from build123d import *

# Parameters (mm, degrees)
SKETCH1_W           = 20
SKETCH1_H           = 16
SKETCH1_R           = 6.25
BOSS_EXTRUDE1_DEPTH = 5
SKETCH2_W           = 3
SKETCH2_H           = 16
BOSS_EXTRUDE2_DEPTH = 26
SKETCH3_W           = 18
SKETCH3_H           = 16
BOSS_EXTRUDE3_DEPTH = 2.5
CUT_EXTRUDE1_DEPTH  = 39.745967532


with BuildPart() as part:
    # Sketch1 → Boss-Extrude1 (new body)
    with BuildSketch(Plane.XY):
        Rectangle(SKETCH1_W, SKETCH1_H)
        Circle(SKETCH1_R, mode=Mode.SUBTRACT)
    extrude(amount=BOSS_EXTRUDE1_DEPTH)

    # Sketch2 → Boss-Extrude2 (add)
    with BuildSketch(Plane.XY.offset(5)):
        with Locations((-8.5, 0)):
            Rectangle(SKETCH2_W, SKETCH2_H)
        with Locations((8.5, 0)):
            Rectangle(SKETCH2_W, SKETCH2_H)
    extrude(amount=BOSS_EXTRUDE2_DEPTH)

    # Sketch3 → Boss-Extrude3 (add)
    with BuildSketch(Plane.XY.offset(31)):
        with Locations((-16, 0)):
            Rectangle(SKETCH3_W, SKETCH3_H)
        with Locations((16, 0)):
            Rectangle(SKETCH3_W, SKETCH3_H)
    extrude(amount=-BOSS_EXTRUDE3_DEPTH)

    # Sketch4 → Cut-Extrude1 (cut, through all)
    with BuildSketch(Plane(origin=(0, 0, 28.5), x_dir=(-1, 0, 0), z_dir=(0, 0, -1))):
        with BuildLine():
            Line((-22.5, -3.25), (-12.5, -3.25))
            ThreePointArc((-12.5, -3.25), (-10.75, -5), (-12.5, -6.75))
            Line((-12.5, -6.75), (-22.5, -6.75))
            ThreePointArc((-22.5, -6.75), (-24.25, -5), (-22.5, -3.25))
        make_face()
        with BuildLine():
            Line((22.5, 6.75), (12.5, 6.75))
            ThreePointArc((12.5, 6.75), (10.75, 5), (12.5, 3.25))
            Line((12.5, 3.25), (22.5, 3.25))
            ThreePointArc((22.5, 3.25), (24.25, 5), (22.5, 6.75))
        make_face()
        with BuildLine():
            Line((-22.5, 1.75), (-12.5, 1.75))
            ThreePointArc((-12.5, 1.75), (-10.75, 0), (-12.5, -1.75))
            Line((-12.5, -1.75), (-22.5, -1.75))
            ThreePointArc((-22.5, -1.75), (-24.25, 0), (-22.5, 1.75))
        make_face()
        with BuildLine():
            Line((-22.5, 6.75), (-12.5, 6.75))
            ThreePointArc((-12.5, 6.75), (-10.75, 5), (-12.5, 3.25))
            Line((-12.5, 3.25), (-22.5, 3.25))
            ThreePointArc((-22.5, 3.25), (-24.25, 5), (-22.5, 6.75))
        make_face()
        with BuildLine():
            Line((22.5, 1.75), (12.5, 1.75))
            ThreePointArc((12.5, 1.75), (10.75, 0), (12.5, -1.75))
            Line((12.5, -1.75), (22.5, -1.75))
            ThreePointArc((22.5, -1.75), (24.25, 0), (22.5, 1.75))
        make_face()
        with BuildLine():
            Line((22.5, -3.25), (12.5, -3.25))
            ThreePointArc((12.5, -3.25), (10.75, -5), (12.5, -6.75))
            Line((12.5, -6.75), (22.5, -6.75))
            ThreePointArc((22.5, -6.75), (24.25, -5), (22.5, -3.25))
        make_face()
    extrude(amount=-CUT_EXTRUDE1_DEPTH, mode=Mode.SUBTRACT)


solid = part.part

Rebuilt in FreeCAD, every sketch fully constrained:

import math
import FreeCAD as App
import Part
import Sketcher
Q = App.Units.Quantity

doc = App.newDocument("Part")
body = doc.addObject("PartDesign::Body", "Body")

# Sketch on XY plane
sketch1 = doc.addObject("Sketcher::SketchObject", "Sketch")
body.addObject(sketch1)
sketch1.AttachmentSupport = (doc.XY_Plane, [""])
sketch1.MapMode = "FlatFace"
sketch1.addGeometry(Part.LineSegment(App.Vector(-10, 8, 0), App.Vector(-10, -8, 0)), False)
sketch1.addGeometry(Part.LineSegment(App.Vector(-10, -8, 0), App.Vector(10, -8, 0)), False)
sketch1.addGeometry(Part.LineSegment(App.Vector(10, -8, 0), App.Vector(10, 8, 0)), False)
sketch1.addGeometry(Part.LineSegment(App.Vector(10, 8, 0), App.Vector(-10, 8, 0)), False)
sketch1.addGeometry(Part.Circle(App.Vector(0, 0, 0), App.Vector(0, 0, 1), 6), False)
sketch1.addConstraint(Sketcher.Constraint("Coincident", 0, 2, 1, 1))
sketch1.addConstraint(Sketcher.Constraint("Coincident", 1, 2, 2, 1))
sketch1.addConstraint(Sketcher.Constraint("Coincident", 2, 2, 3, 1))
sketch1.addConstraint(Sketcher.Constraint("Coincident", 3, 2, 0, 1))
sketch1.addConstraint(Sketcher.Constraint("Vertical", 0))
sketch1.addConstraint(Sketcher.Constraint("Horizontal", 1))
sketch1.addConstraint(Sketcher.Constraint("Vertical", 2))
sketch1.addConstraint(Sketcher.Constraint("Horizontal", 3))
sketch1.addConstraint(Sketcher.Constraint("Coincident", 4, 3, -1, 1))
sketch1.addConstraint(Sketcher.Constraint("Symmetric", 0, 2, 2, 2, -1, 1))
sketch1.addConstraint(Sketcher.Constraint("Diameter", 4, Q("12.5 mm")))
sketch1.addConstraint(Sketcher.Constraint("DistanceX", 1, 1, 1, 2, Q("20 mm")))
sketch1.addConstraint(Sketcher.Constraint("DistanceY", 0, 2, 0, 1, Q("16 mm")))
pad1 = doc.addObject("PartDesign::Pad", "Pad")
body.addObject(pad1)
pad1.Profile = sketch1
pad1.Length = 5

# Sketch on XY plane
sketch2 = doc.addObject("Sketcher::SketchObject", "Sketch001")
body.addObject(sketch2)
sketch2.AttachmentSupport = (doc.XY_Plane, [""])
sketch2.MapMode = "FlatFace"
sketch2.AttachmentOffset = App.Placement(App.Vector(0, 0, 5), App.Rotation())
sketch2.addGeometry(Part.LineSegment(App.Vector(-10, 8, 0), App.Vector(-10, -8, 0)), False)
sketch2.addGeometry(Part.LineSegment(App.Vector(-10, -8, 0), App.Vector(-7, -8, 0)), False)
sketch2.addGeometry(Part.LineSegment(App.Vector(-7, -8, 0), App.Vector(-7, 8, 0)), False)
sketch2.addGeometry(Part.LineSegment(App.Vector(-7, 8, 0), App.Vector(-10, 8, 0)), False)
sketch2.addGeometry(Part.LineSegment(App.Vector(7, 8, 0), App.Vector(7, -8, 0)), False)
sketch2.addGeometry(Part.LineSegment(App.Vector(7, -8, 0), App.Vector(10, -8, 0)), False)
sketch2.addGeometry(Part.LineSegment(App.Vector(10, -8, 0), App.Vector(10, 8, 0)), False)
sketch2.addGeometry(Part.LineSegment(App.Vector(10, 8, 0), App.Vector(7, 8, 0)), False)
sketch2.addConstraint(Sketcher.Constraint("Coincident", 0, 2, 1, 1))
sketch2.addConstraint(Sketcher.Constraint("Coincident", 1, 2, 2, 1))
sketch2.addConstraint(Sketcher.Constraint("Coincident", 2, 2, 3, 1))
sketch2.addConstraint(Sketcher.Constraint("Coincident", 3, 2, 0, 1))
sketch2.addConstraint(Sketcher.Constraint("Coincident", 4, 2, 5, 1))
sketch2.addConstraint(Sketcher.Constraint("Coincident", 5, 2, 6, 1))
sketch2.addConstraint(Sketcher.Constraint("Coincident", 6, 2, 7, 1))
sketch2.addConstraint(Sketcher.Constraint("Coincident", 7, 2, 4, 1))
sketch2.addConstraint(Sketcher.Constraint("Vertical", 0))
sketch2.addConstraint(Sketcher.Constraint("Horizontal", 1))
sketch2.addConstraint(Sketcher.Constraint("Vertical", 2))
sketch2.addConstraint(Sketcher.Constraint("Horizontal", 3))
sketch2.addConstraint(Sketcher.Constraint("Vertical", 4))
sketch2.addConstraint(Sketcher.Constraint("Horizontal", 5))
sketch2.addConstraint(Sketcher.Constraint("Vertical", 6))
sketch2.addConstraint(Sketcher.Constraint("Horizontal", 7))
sketch2.addConstraint(Sketcher.Constraint("Symmetric", 2, 2, 4, 2, -1, 1))
sketch2.addConstraint(Sketcher.Constraint("Symmetric", 0, 2, 6, 2, -1, 1))
sketch2.addConstraint(Sketcher.Constraint("Horizontal", 1, 2, 4, 2))
sketch2.addConstraint(Sketcher.Constraint("DistanceX", 1, 1, 1, 2, Q("3 mm")))
sketch2.addConstraint(Sketcher.Constraint("DistanceY", 0, 2, 0, 1, Q("16 mm")))
sketch2.addConstraint(Sketcher.Constraint("DistanceX", 0, 2, -1, 1, Q("10 mm")))
pad2 = doc.addObject("PartDesign::Pad", "Pad001")
body.addObject(pad2)
pad2.Profile = sketch2
pad2.Length = 26

# Sketch on XY plane
sketch3 = doc.addObject("Sketcher::SketchObject", "Sketch002")
body.addObject(sketch3)
sketch3.AttachmentSupport = (doc.XY_Plane, [""])
sketch3.MapMode = "FlatFace"
sketch3.AttachmentOffset = App.Placement(App.Vector(0, 0, 31), App.Rotation())
sketch3.addGeometry(Part.LineSegment(App.Vector(-25, 8, 0), App.Vector(-25, -8, 0)), False)
sketch3.addGeometry(Part.LineSegment(App.Vector(-25, -8, 0), App.Vector(-7, -8, 0)), False)
sketch3.addGeometry(Part.LineSegment(App.Vector(-7, -8, 0), App.Vector(-7, 8, 0)), False)
sketch3.addGeometry(Part.LineSegment(App.Vector(-7, 8, 0), App.Vector(-25, 8, 0)), False)
sketch3.addGeometry(Part.LineSegment(App.Vector(7, 8, 0), App.Vector(7, -8, 0)), False)
sketch3.addGeometry(Part.LineSegment(App.Vector(7, -8, 0), App.Vector(25, -8, 0)), False)
sketch3.addGeometry(Part.LineSegment(App.Vector(25, -8, 0), App.Vector(25, 8, 0)), False)
sketch3.addGeometry(Part.LineSegment(App.Vector(25, 8, 0), App.Vector(7, 8, 0)), False)
sketch3.addConstraint(Sketcher.Constraint("Coincident", 0, 2, 1, 1))
sketch3.addConstraint(Sketcher.Constraint("Coincident", 1, 2, 2, 1))
sketch3.addConstraint(Sketcher.Constraint("Coincident", 2, 2, 3, 1))
sketch3.addConstraint(Sketcher.Constraint("Coincident", 3, 2, 0, 1))
sketch3.addConstraint(Sketcher.Constraint("Coincident", 4, 2, 5, 1))
sketch3.addConstraint(Sketcher.Constraint("Coincident", 5, 2, 6, 1))
sketch3.addConstraint(Sketcher.Constraint("Coincident", 6, 2, 7, 1))
sketch3.addConstraint(Sketcher.Constraint("Coincident", 7, 2, 4, 1))
sketch3.addConstraint(Sketcher.Constraint("Vertical", 0))
sketch3.addConstraint(Sketcher.Constraint("Horizontal", 1))
sketch3.addConstraint(Sketcher.Constraint("Vertical", 2))
sketch3.addConstraint(Sketcher.Constraint("Horizontal", 3))
sketch3.addConstraint(Sketcher.Constraint("Vertical", 4))
sketch3.addConstraint(Sketcher.Constraint("Horizontal", 5))
sketch3.addConstraint(Sketcher.Constraint("Vertical", 6))
sketch3.addConstraint(Sketcher.Constraint("Horizontal", 7))
sketch3.addConstraint(Sketcher.Constraint("Symmetric", 2, 2, 4, 2, -1, 1))
sketch3.addConstraint(Sketcher.Constraint("Symmetric", 0, 2, 6, 2, -1, 1))
sketch3.addConstraint(Sketcher.Constraint("Horizontal", 1, 2, 4, 2))
sketch3.addConstraint(Sketcher.Constraint("DistanceX", 1, 1, 1, 2, Q("18 mm")))
sketch3.addConstraint(Sketcher.Constraint("DistanceY", 0, 2, 0, 1, Q("16 mm")))
sketch3.addConstraint(Sketcher.Constraint("DistanceX", 0, 2, -1, 1, Q("25 mm")))
pad3 = doc.addObject("PartDesign::Pad", "Pad002")
body.addObject(pad3)
pad3.Profile = sketch3
pad3.Length = 2.5
pad3.Reversed = True

# Sketch on XY plane
sketch4 = doc.addObject("Sketcher::SketchObject", "Sketch003")
body.addObject(sketch4)
sketch4.AttachmentSupport = (doc.XY_Plane, [""])
sketch4.MapMode = "FlatFace"
sketch4.AttachmentOffset = App.Placement(App.Vector(0, 0, 28.5), App.Rotation())
sketch4.addGeometry(Part.LineSegment(App.Vector(12.5, -3.2, 0), App.Vector(22.5, -3.2, 0)), False)
sketch4.addGeometry(Part.ArcOfCircle(Part.Circle(App.Vector(22.5, -5, 0), App.Vector(0, 0, 1), 1.8), math.radians(-90), math.radians(90)), False)
sketch4.addGeometry(Part.LineSegment(App.Vector(22.5, -6.8, 0), App.Vector(12.5, -6.8, 0)), False)
sketch4.addGeometry(Part.ArcOfCircle(Part.Circle(App.Vector(12.5, -5, 0), App.Vector(0, 0, 1), 1.8), math.radians(90), math.radians(270)), False)
sketch4.addGeometry(Part.LineSegment(App.Vector(-22.5, 6.8, 0), App.Vector(-12.5, 6.8, 0)), False)
sketch4.addGeometry(Part.ArcOfCircle(Part.Circle(App.Vector(-12.5, 5, 0), App.Vector(0, 0, 1), 1.8), math.radians(-90), math.radians(90)), False)
sketch4.addGeometry(Part.LineSegment(App.Vector(-12.5, 3.2, 0), App.Vector(-22.5, 3.2, 0)), False)
sketch4.addGeometry(Part.ArcOfCircle(Part.Circle(App.Vector(-22.5, 5, 0), App.Vector(0, 0, 1), 1.8), math.radians(90), math.radians(270)), False)
sketch4.addGeometry(Part.LineSegment(App.Vector(12.5, 1.8, 0), App.Vector(22.5, 1.8, 0)), False)
sketch4.addGeometry(Part.ArcOfCircle(Part.Circle(App.Vector(22.5, 0, 0), App.Vector(0, 0, 1), 1.8), math.radians(-90), math.radians(90)), False)
sketch4.addGeometry(Part.LineSegment(App.Vector(22.5, -1.8, 0), App.Vector(12.5, -1.8, 0)), False)
sketch4.addGeometry(Part.ArcOfCircle(Part.Circle(App.Vector(12.5, 0, 0), App.Vector(0, 0, 1), 1.8), math.radians(90), math.radians(270)), False)
sketch4.addGeometry(Part.LineSegment(App.Vector(12.5, 6.8, 0), App.Vector(22.5, 6.8, 0)), False)
sketch4.addGeometry(Part.ArcOfCircle(Part.Circle(App.Vector(22.5, 5, 0), App.Vector(0, 0, 1), 1.8), math.radians(-90), math.radians(90)), False)
sketch4.addGeometry(Part.LineSegment(App.Vector(22.5, 3.2, 0), App.Vector(12.5, 3.2, 0)), False)
sketch4.addGeometry(Part.ArcOfCircle(Part.Circle(App.Vector(12.5, 5, 0), App.Vector(0, 0, 1), 1.8), math.radians(90), math.radians(270)), False)
sketch4.addGeometry(Part.LineSegment(App.Vector(-22.5, 1.8, 0), App.Vector(-12.5, 1.8, 0)), False)
sketch4.addGeometry(Part.ArcOfCircle(Part.Circle(App.Vector(-12.5, 0, 0), App.Vector(0, 0, 1), 1.8), math.radians(-90), math.radians(90)), False)
sketch4.addGeometry(Part.LineSegment(App.Vector(-12.5, -1.8, 0), App.Vector(-22.5, -1.8, 0)), False)
sketch4.addGeometry(Part.ArcOfCircle(Part.Circle(App.Vector(-22.5, 0, 0), App.Vector(0, 0, 1), 1.8), math.radians(90), math.radians(270)), False)
sketch4.addGeometry(Part.LineSegment(App.Vector(-22.5, -3.2, 0), App.Vector(-12.5, -3.2, 0)), False)
sketch4.addGeometry(Part.ArcOfCircle(Part.Circle(App.Vector(-12.5, -5, 0), App.Vector(0, 0, 1), 1.8), math.radians(-90), math.radians(90)), False)
sketch4.addGeometry(Part.LineSegment(App.Vector(-12.5, -6.8, 0), App.Vector(-22.5, -6.8, 0)), False)
sketch4.addGeometry(Part.ArcOfCircle(Part.Circle(App.Vector(-22.5, -5, 0), App.Vector(0, 0, 1), 1.8), math.radians(90), math.radians(270)), False)
sketch4.addConstraint(Sketcher.Constraint("Tangent", 0, 2, 1, 2))
sketch4.addConstraint(Sketcher.Constraint("Tangent", 1, 1, 2, 1))
sketch4.addConstraint(Sketcher.Constraint("Tangent", 2, 2, 3, 2))
sketch4.addConstraint(Sketcher.Constraint("Tangent", 3, 1, 0, 1))
sketch4.addConstraint(Sketcher.Constraint("Tangent", 4, 2, 5, 2))
sketch4.addConstraint(Sketcher.Constraint("Tangent", 5, 1, 6, 1))
sketch4.addConstraint(Sketcher.Constraint("Tangent", 6, 2, 7, 2))
sketch4.addConstraint(Sketcher.Constraint("Tangent", 7, 1, 4, 1))
sketch4.addConstraint(Sketcher.Constraint("Tangent", 8, 2, 9, 2))
sketch4.addConstraint(Sketcher.Constraint("Tangent", 9, 1, 10, 1))
sketch4.addConstraint(Sketcher.Constraint("Tangent", 10, 2, 11, 2))
sketch4.addConstraint(Sketcher.Constraint("Tangent", 11, 1, 8, 1))
sketch4.addConstraint(Sketcher.Constraint("Tangent", 12, 2, 13, 2))
sketch4.addConstraint(Sketcher.Constraint("Tangent", 13, 1, 14, 1))
sketch4.addConstraint(Sketcher.Constraint("Tangent", 14, 2, 15, 2))
sketch4.addConstraint(Sketcher.Constraint("Tangent", 15, 1, 12, 1))
sketch4.addConstraint(Sketcher.Constraint("Tangent", 16, 2, 17, 2))
sketch4.addConstraint(Sketcher.Constraint("Tangent", 17, 1, 18, 1))
sketch4.addConstraint(Sketcher.Constraint("Tangent", 18, 2, 19, 2))
sketch4.addConstraint(Sketcher.Constraint("Tangent", 19, 1, 16, 1))
sketch4.addConstraint(Sketcher.Constraint("Tangent", 20, 2, 21, 2))
sketch4.addConstraint(Sketcher.Constraint("Tangent", 21, 1, 22, 1))
sketch4.addConstraint(Sketcher.Constraint("Tangent", 22, 2, 23, 2))
sketch4.addConstraint(Sketcher.Constraint("Tangent", 23, 1, 20, 1))
sketch4.addConstraint(Sketcher.Constraint("Horizontal", 0))
sketch4.addConstraint(Sketcher.Constraint("Horizontal", 2))
sketch4.addConstraint(Sketcher.Constraint("Horizontal", 4))
sketch4.addConstraint(Sketcher.Constraint("Horizontal", 6))
sketch4.addConstraint(Sketcher.Constraint("Horizontal", 8))
sketch4.addConstraint(Sketcher.Constraint("Horizontal", 10))
sketch4.addConstraint(Sketcher.Constraint("Horizontal", 12))
sketch4.addConstraint(Sketcher.Constraint("Horizontal", 14))
sketch4.addConstraint(Sketcher.Constraint("Horizontal", 16))
sketch4.addConstraint(Sketcher.Constraint("Horizontal", 18))
sketch4.addConstraint(Sketcher.Constraint("Horizontal", 20))
sketch4.addConstraint(Sketcher.Constraint("Horizontal", 22))
sketch4.addConstraint(Sketcher.Constraint("Equal", 3, 5))
sketch4.addConstraint(Sketcher.Constraint("Equal", 7, 9))
sketch4.addConstraint(Sketcher.Constraint("Equal", 11, 13))
sketch4.addConstraint(Sketcher.Constraint("Equal", 15, 17))
sketch4.addConstraint(Sketcher.Constraint("Equal", 19, 21))
sketch4.addConstraint(Sketcher.Constraint("Symmetric", 3, 3, 5, 3, -1, 1))
sketch4.addConstraint(Sketcher.Constraint("Symmetric", 11, 3, 17, 3, -1, 1))
sketch4.addConstraint(Sketcher.Constraint("Symmetric", 15, 3, 21, 3, -1, 1))
sketch4.addConstraint(Sketcher.Constraint("Symmetric", 7, 3, 13, 3, -2))
sketch4.addConstraint(Sketcher.Constraint("Symmetric", 9, 3, 19, 3, -2))
sketch4.addConstraint(Sketcher.Constraint("Vertical", 1, 3, 9, 3))
sketch4.addConstraint(Sketcher.Constraint("Vertical", 3, 3, 11, 3))
sketch4.addConstraint(Sketcher.Constraint("Vertical", 9, 3, 13, 3))
sketch4.addConstraint(Sketcher.Constraint("Vertical", 11, 3, 15, 3))
sketch4.addConstraint(Sketcher.Constraint("Vertical", 19, 3, 23, 3))
sketch4.addConstraint(Sketcher.Constraint("DistanceX", 0, 1, 0, 2, Q("10 mm")))
sketch4.addConstraint(Sketcher.Constraint("Radius", 1, Q("1.75 mm")))
sketch4.addConstraint(Sketcher.Constraint("DistanceY", 1, 3, -1, 1, Q("5 mm")))
sketch4.addConstraint(Sketcher.Constraint("DistanceX", 5, 3, 3, 3, Q("25 mm")))
pocket1 = doc.addObject("PartDesign::Pocket", "Pocket")
body.addObject(pocket1)
pocket1.Profile = sketch4
pocket1.Type = "ThroughAll"
pocket1.Reversed = True

doc.recompute()
